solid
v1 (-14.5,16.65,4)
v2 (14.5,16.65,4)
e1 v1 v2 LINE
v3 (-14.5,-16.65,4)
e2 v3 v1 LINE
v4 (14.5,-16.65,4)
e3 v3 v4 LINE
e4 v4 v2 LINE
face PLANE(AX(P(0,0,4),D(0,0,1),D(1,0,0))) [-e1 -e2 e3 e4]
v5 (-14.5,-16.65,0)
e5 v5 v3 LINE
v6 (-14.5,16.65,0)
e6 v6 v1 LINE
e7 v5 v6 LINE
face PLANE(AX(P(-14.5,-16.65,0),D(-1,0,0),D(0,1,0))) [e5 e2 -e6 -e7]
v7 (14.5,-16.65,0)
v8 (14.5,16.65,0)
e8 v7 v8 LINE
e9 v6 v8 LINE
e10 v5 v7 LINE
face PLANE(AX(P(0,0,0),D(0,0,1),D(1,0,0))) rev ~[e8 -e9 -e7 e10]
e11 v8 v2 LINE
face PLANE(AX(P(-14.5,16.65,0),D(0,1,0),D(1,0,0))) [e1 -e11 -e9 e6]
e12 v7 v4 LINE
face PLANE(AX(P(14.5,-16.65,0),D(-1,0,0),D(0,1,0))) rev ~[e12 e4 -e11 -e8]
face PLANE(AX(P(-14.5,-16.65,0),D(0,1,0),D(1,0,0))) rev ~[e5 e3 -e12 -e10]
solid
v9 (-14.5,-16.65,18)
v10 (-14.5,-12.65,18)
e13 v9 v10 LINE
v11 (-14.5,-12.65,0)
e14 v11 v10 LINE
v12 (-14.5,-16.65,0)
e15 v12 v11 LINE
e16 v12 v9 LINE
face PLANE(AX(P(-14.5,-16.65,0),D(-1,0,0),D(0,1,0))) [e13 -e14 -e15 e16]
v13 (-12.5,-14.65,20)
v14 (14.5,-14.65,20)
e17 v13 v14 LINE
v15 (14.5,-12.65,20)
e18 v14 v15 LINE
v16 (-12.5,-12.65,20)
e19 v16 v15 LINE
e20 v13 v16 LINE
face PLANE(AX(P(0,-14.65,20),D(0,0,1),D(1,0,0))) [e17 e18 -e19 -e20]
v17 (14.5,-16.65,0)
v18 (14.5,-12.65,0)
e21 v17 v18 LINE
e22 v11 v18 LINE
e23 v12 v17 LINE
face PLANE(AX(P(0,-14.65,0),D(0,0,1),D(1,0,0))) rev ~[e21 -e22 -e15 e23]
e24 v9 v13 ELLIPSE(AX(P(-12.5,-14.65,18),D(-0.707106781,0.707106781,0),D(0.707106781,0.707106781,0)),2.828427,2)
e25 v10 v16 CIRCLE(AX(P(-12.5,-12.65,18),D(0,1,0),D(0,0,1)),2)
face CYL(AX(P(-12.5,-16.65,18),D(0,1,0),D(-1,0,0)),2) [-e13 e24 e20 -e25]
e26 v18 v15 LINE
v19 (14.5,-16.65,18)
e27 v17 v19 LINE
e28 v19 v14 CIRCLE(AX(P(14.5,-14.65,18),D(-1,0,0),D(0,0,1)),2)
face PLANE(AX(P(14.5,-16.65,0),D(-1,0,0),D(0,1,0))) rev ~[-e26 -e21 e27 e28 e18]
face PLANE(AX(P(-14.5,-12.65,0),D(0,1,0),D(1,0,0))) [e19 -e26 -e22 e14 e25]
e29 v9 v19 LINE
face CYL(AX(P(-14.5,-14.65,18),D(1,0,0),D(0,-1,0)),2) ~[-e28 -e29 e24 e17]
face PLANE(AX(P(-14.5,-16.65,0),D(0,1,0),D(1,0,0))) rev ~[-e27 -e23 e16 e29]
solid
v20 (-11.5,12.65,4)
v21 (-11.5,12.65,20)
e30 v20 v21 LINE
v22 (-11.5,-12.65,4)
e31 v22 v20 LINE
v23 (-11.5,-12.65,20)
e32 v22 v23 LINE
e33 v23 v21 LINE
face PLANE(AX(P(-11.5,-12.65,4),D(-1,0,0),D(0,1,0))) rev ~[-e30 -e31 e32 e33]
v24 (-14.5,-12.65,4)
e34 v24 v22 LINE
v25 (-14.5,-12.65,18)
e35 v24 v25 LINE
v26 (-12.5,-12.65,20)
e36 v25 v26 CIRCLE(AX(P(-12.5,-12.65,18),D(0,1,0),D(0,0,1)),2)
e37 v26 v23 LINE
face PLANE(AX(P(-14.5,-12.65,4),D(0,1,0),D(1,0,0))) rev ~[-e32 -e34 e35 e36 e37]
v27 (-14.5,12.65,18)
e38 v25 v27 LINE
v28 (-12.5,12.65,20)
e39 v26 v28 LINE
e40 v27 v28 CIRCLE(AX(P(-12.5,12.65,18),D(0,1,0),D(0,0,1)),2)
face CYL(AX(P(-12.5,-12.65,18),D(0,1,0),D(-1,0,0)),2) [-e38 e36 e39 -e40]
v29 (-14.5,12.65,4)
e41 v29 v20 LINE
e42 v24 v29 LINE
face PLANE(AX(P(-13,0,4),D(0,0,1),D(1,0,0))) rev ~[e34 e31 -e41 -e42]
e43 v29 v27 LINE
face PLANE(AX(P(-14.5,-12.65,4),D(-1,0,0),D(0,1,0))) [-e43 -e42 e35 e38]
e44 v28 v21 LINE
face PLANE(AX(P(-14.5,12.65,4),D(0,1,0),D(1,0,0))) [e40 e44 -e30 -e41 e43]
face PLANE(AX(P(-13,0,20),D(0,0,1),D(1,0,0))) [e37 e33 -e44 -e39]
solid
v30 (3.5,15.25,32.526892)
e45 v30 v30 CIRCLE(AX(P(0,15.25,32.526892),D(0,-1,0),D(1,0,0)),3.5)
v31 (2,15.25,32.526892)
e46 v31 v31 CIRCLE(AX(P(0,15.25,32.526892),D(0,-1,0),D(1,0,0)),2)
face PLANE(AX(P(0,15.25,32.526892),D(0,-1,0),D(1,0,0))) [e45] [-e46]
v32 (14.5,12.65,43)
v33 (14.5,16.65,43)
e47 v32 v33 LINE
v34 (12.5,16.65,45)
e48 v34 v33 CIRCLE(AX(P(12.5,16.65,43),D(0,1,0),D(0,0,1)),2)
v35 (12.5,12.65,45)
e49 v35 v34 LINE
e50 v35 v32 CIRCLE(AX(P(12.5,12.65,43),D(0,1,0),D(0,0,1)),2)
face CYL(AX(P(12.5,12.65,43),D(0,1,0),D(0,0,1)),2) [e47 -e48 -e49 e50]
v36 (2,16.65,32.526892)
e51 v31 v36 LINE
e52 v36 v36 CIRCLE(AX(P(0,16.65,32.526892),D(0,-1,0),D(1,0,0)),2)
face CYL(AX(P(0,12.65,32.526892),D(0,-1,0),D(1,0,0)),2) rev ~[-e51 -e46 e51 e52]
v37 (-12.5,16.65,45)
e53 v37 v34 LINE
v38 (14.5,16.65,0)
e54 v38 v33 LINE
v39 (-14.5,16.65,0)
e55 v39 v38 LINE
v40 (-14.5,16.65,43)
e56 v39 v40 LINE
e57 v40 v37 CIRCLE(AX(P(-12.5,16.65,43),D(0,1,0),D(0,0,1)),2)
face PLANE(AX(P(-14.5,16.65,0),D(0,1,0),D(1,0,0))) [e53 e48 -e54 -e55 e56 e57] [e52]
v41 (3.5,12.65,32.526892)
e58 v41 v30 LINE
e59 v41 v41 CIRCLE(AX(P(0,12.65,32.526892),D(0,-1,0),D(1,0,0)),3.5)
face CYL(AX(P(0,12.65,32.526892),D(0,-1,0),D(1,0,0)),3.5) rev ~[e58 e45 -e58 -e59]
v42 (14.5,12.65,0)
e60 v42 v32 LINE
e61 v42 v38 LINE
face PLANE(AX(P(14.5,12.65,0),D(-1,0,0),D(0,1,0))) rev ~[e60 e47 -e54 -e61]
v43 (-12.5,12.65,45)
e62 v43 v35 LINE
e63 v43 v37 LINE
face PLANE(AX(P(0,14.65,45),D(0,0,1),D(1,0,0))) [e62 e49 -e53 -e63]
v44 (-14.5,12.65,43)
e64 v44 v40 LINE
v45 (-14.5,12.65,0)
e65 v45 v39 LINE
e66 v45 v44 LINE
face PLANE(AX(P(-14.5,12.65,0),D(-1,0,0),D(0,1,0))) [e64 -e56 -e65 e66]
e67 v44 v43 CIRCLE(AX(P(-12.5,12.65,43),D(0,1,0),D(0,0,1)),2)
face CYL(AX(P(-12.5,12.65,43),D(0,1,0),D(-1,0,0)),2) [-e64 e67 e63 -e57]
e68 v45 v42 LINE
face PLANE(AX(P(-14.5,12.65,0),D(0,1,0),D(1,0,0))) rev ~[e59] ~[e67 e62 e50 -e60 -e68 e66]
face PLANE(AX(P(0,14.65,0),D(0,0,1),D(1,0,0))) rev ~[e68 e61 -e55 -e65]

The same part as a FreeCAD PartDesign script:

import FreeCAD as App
import Part
import Sketcher


def edges_at(feature, points):
    """Names of the edges that pass closest to the given points."""
    edges = feature.Shape.Edges
    near = lambda p: min(range(len(edges)), key=lambda i: edges[i].distToShape(Part.Vertex(*p))[0])
    return sorted({f"Edge{near(p) + 1}" for p in points})

doc = App.newDocument("Part")
body = doc.addObject("PartDesign::Body", "Body")

sketch1 = doc.addObject("Sketcher::SketchObject", "Sketch")
body.addObject(sketch1)
sketch1.AttachmentSupport = (doc.XY_Plane, [""])
sketch1.MapMode = "FlatFace"
sketch1.addGeometry(Part.LineSegment(App.Vector(-14, 17, 0), App.Vector(-14, -17, 0)), False)
sketch1.addGeometry(Part.LineSegment(App.Vector(-14, -17, 0), App.Vector(14, -17, 0)), False)
sketch1.addGeometry(Part.LineSegment(App.Vector(14, -17, 0), App.Vector(14, 17, 0)), False)
sketch1.addGeometry(Part.LineSegment(App.Vector(14, 17, 0), App.Vector(-14, 17, 0)), False)
sketch1.addConstraint(Sketcher.Constraint("Coincident", 0, 2, 1, 1))
sketch1.addConstraint(Sketcher.Constraint("Coincident", 1, 2, 2, 1))
sketch1.addConstraint(Sketcher.Constraint("Coincident", 2, 2, 3, 1))
sketch1.addConstraint(Sketcher.Constraint("Coincident", 3, 2, 0, 1))
sketch1.addConstraint(Sketcher.Constraint("Vertical", 0))
sketch1.addConstraint(Sketcher.Constraint("Horizontal", 1))
sketch1.addConstraint(Sketcher.Constraint("Vertical", 2))
sketch1.addConstraint(Sketcher.Constraint("Horizontal", 3))
sketch1.addConstraint(Sketcher.Constraint("Symmetric", 0, 2, 2, 2, -1, 1))
sketch1.addConstraint(Sketcher.Constraint("DistanceX", 1, 1, 1, 2, 29.0))
sketch1.addConstraint(Sketcher.Constraint("DistanceY", 0, 2, 0, 1, 33.3))
pad1 = doc.addObject("PartDesign::Pad", "Pad")
body.addObject(pad1)
pad1.Profile = sketch1
pad1.Length = 4
body2 = doc.addObject("PartDesign::Body", "Body001")

sketch2 = doc.addObject("Sketcher::SketchObject", "Sketch001")
body2.addObject(sketch2)
sketch2.AttachmentSupport = (doc.getObject("XY_Plane001"), [""])
sketch2.MapMode = "FlatFace"
sketch2.addGeometry(Part.LineSegment(App.Vector(-14.5, 16.6, 0), App.Vector(-14.5, 12.7, 0)), False)
sketch2.addGeometry(Part.LineSegment(App.Vector(-14.5, 12.7, 0), App.Vector(14.5, 12.7, 0)), False)
sketch2.addGeometry(Part.LineSegment(App.Vector(14.5, 12.7, 0), App.Vector(14.5, 16.6, 0)), False)
sketch2.addGeometry(Part.LineSegment(App.Vector(14.5, 16.6, 0), App.Vector(-14.5, 16.6, 0)), False)
sketch2.addConstraint(Sketcher.Constraint("Coincident", 0, 2, 1, 1))
sketch2.addConstraint(Sketcher.Constraint("Coincident", 1, 2, 2, 1))
sketch2.addConstraint(Sketcher.Constraint("Coincident", 2, 2, 3, 1))
sketch2.addConstraint(Sketcher.Constraint("Coincident", 3, 2, 0, 1))
sketch2.addConstraint(Sketcher.Constraint("Vertical", 0))
sketch2.addConstraint(Sketcher.Constraint("Horizontal", 1))
sketch2.addConstraint(Sketcher.Constraint("Vertical", 2))
sketch2.addConstraint(Sketcher.Constraint("Horizontal", 3))
sketch2.addConstraint(Sketcher.Constraint("DistanceX", 1, 1, 1, 2, 29.0))
sketch2.addConstraint(Sketcher.Constraint("DistanceY", 0, 2, 0, 1, 4.0))
sketch2.addConstraint(Sketcher.Constraint("DistanceX", 0, 2, -1, 1, 14.5))
sketch2.addConstraint(Sketcher.Constraint("DistanceY", -1, 1, 0, 2, 12.65))
pad2 = doc.addObject("PartDesign::Pad", "Pad001")
body2.addObject(pad2)
pad2.Profile = sketch2
pad2.Length = 45

sketch3 = doc.addObject("Sketcher::SketchObject", "Sketch002")
body2.addObject(sketch3)
sketch3.AttachmentSupport = (doc.getObject("XZ_Plane001"), [""])
sketch3.MapMode = "FlatFace"
sketch3.AttachmentOffset = App.Placement(App.Vector(0, 0, -12.65), App.Rotation())
sketch3.addGeometry(Part.Circle(App.Vector(0, 32.5, 0), App.Vector(0, 0, 1), 2), False)
sketch3.addConstraint(Sketcher.Constraint("PointOnObject", 0, 3, -2))
sketch3.addConstraint(Sketcher.Constraint("Diameter", 0, 4.0))
sketch3.addConstraint(Sketcher.Constraint("DistanceY", -1, 1, 0, 3, 32.526892))
pocket1 = doc.addObject("PartDesign::Pocket", "Pocket")
body2.addObject(pocket1)
pocket1.Profile = sketch3
pocket1.Length = 6

sketch4 = doc.addObject("Sketcher::SketchObject", "Sketch003")
body2.addObject(sketch4)
sketch4.AttachmentSupport = (doc.getObject("XZ_Plane001"), [""])
sketch4.MapMode = "FlatFace"
sketch4.AttachmentOffset = App.Placement(App.Vector(0, 0, -12.65), App.Rotation())
sketch4.addGeometry(Part.Circle(App.Vector(0, 32.5, 0), App.Vector(0, 0, 1), 3.5), False)
sketch4.addConstraint(Sketcher.Constraint("PointOnObject", 0, 3, -2))
sketch4.addConstraint(Sketcher.Constraint("Diameter", 0, 7.0))
sketch4.addConstraint(Sketcher.Constraint("DistanceY", -1, 1, 0, 3, 32.526892))
pocket2 = doc.addObject("PartDesign::Pocket", "Pocket001")
body2.addObject(pocket2)
pocket2.Profile = sketch4
pocket2.Length = 2.6
doc.recompute()

fillet = doc.addObject("PartDesign::Fillet", "Fillet")
body2.addObject(fillet)
fillet.Base = (pocket2, edges_at(pocket2, [(-14.5, 14.65, 45), (14.5, 14.65, 45)]))
fillet.Radius = 2
body3 = doc.addObject("PartDesign::Body", "Body002")

sketch5 = doc.addObject("Sketcher::SketchObject", "Sketch004")
body3.addObject(sketch5)
sketch5.AttachmentSupport = (doc.getObject("XY_Plane002"), [""])
sketch5.MapMode = "FlatFace"
sketch5.addGeometry(Part.LineSegment(App.Vector(-14.5, -12.7, 0), App.Vector(-14.5, -16.6, 0)), False)
sketch5.addGeometry(Part.LineSegment(App.Vector(-14.5, -16.6, 0), App.Vector(14.5, -16.6, 0)), False)
sketch5.addGeometry(Part.LineSegment(App.Vector(14.5, -16.6, 0), App.Vector(14.5, -12.7, 0)), False)
sketch5.addGeometry(Part.LineSegment(App.Vector(14.5, -12.7, 0), App.Vector(-14.5, -12.7, 0)), False)
sketch5.addConstraint(Sketcher.Constraint("Coincident", 0, 2, 1, 1))
sketch5.addConstraint(Sketcher.Constraint("Coincident", 1, 2, 2, 1))
sketch5.addConstraint(Sketcher.Constraint("Coincident", 2, 2, 3, 1))
sketch5.addConstraint(Sketcher.Constraint("Coincident", 3, 2, 0, 1))
sketch5.addConstraint(Sketcher.Constraint("Vertical", 0))
sketch5.addConstraint(Sketcher.Constraint("Horizontal", 1))
sketch5.addConstraint(Sketcher.Constraint("Vertical", 2))
sketch5.addConstraint(Sketcher.Constraint("Horizontal", 3))
sketch5.addConstraint(Sketcher.Constraint("DistanceX", 1, 1, 1, 2, 29.0))
sketch5.addConstraint(Sketcher.Constraint("DistanceY", 0, 2, 0, 1, 4.0))
sketch5.addConstraint(Sketcher.Constraint("DistanceX", 0, 2, -1, 1, 14.5))
sketch5.addConstraint(Sketcher.Constraint("DistanceY", 0, 2, -1, 1, 16.65))
pad3 = doc.addObject("PartDesign::Pad", "Pad002")
body3.addObject(pad3)
pad3.Profile = sketch5
pad3.Length = 20
doc.recompute()

fillet2 = doc.addObject("PartDesign::Fillet", "Fillet001")
body3.addObject(fillet2)
fillet2.Base = (pad3, edges_at(pad3, [(0, -16.65, 20), (-14.5, -14.65, 20)]))
fillet2.Radius = 2
body4 = doc.addObject("PartDesign::Body", "Body003")

sketch6 = doc.addObject("Sketcher::SketchObject", "Sketch005")
body4.addObject(sketch6)
sketch6.AttachmentSupport = (doc.getObject("XY_Plane003"), [""])
sketch6.MapMode = "FlatFace"
sketch6.AttachmentOffset = App.Placement(App.Vector(0, 0, 4), App.Rotation())
sketch6.addGeometry(Part.LineSegment(App.Vector(-14.5, 12.7, 0), App.Vector(-14.5, -12.7, 0)), False)
sketch6.addGeometry(Part.LineSegment(App.Vector(-14.5, -12.7, 0), App.Vector(-11.5, -12.7, 0)), False)
sketch6.addGeometry(Part.LineSegment(App.Vector(-11.5, -12.7, 0), App.Vector(-11.5, 12.7, 0)), False)
sketch6.addGeometry(Part.LineSegment(App.Vector(-11.5, 12.7, 0), App.Vector(-14.5, 12.7, 0)), False)
sketch6.addConstraint(Sketcher.Constraint("Coincident", 0, 2, 1, 1))
sketch6.addConstraint(Sketcher.Constraint("Coincident", 1, 2, 2, 1))
sketch6.addConstraint(Sketcher.Constraint("Coincident", 2, 2, 3, 1))
sketch6.addConstraint(Sketcher.Constraint("Coincident", 3, 2, 0, 1))
sketch6.addConstraint(Sketcher.Constraint("Vertical", 0))
sketch6.addConstraint(Sketcher.Constraint("Horizontal", 1))
sketch6.addConstraint(Sketcher.Constraint("Vertical", 2))
sketch6.addConstraint(Sketcher.Constraint("Horizontal", 3))
sketch6.addConstraint(Sketcher.Constraint("DistanceX", 1, 1, 1, 2, 3.0))
sketch6.addConstraint(Sketcher.Constraint("DistanceY", 0, 2, 0, 1, 25.3))
sketch6.addConstraint(Sketcher.Constraint("DistanceX", 0, 2, -1, 1, 14.5))
sketch6.addConstraint(Sketcher.Constraint("DistanceY", 0, 2, -1, 1, 12.65))
pad4 = doc.addObject("PartDesign::Pad", "Pad003")
body4.addObject(pad4)
pad4.Profile = sketch6
pad4.Length = 16
doc.recompute()

fillet3 = doc.addObject("PartDesign::Fillet", "Fillet002")
body4.addObject(fillet3)
fillet3.Base = (pad4, edges_at(pad4, [(-14.5, 0, 20)]))
fillet3.Radius = 2

doc.recompute()
